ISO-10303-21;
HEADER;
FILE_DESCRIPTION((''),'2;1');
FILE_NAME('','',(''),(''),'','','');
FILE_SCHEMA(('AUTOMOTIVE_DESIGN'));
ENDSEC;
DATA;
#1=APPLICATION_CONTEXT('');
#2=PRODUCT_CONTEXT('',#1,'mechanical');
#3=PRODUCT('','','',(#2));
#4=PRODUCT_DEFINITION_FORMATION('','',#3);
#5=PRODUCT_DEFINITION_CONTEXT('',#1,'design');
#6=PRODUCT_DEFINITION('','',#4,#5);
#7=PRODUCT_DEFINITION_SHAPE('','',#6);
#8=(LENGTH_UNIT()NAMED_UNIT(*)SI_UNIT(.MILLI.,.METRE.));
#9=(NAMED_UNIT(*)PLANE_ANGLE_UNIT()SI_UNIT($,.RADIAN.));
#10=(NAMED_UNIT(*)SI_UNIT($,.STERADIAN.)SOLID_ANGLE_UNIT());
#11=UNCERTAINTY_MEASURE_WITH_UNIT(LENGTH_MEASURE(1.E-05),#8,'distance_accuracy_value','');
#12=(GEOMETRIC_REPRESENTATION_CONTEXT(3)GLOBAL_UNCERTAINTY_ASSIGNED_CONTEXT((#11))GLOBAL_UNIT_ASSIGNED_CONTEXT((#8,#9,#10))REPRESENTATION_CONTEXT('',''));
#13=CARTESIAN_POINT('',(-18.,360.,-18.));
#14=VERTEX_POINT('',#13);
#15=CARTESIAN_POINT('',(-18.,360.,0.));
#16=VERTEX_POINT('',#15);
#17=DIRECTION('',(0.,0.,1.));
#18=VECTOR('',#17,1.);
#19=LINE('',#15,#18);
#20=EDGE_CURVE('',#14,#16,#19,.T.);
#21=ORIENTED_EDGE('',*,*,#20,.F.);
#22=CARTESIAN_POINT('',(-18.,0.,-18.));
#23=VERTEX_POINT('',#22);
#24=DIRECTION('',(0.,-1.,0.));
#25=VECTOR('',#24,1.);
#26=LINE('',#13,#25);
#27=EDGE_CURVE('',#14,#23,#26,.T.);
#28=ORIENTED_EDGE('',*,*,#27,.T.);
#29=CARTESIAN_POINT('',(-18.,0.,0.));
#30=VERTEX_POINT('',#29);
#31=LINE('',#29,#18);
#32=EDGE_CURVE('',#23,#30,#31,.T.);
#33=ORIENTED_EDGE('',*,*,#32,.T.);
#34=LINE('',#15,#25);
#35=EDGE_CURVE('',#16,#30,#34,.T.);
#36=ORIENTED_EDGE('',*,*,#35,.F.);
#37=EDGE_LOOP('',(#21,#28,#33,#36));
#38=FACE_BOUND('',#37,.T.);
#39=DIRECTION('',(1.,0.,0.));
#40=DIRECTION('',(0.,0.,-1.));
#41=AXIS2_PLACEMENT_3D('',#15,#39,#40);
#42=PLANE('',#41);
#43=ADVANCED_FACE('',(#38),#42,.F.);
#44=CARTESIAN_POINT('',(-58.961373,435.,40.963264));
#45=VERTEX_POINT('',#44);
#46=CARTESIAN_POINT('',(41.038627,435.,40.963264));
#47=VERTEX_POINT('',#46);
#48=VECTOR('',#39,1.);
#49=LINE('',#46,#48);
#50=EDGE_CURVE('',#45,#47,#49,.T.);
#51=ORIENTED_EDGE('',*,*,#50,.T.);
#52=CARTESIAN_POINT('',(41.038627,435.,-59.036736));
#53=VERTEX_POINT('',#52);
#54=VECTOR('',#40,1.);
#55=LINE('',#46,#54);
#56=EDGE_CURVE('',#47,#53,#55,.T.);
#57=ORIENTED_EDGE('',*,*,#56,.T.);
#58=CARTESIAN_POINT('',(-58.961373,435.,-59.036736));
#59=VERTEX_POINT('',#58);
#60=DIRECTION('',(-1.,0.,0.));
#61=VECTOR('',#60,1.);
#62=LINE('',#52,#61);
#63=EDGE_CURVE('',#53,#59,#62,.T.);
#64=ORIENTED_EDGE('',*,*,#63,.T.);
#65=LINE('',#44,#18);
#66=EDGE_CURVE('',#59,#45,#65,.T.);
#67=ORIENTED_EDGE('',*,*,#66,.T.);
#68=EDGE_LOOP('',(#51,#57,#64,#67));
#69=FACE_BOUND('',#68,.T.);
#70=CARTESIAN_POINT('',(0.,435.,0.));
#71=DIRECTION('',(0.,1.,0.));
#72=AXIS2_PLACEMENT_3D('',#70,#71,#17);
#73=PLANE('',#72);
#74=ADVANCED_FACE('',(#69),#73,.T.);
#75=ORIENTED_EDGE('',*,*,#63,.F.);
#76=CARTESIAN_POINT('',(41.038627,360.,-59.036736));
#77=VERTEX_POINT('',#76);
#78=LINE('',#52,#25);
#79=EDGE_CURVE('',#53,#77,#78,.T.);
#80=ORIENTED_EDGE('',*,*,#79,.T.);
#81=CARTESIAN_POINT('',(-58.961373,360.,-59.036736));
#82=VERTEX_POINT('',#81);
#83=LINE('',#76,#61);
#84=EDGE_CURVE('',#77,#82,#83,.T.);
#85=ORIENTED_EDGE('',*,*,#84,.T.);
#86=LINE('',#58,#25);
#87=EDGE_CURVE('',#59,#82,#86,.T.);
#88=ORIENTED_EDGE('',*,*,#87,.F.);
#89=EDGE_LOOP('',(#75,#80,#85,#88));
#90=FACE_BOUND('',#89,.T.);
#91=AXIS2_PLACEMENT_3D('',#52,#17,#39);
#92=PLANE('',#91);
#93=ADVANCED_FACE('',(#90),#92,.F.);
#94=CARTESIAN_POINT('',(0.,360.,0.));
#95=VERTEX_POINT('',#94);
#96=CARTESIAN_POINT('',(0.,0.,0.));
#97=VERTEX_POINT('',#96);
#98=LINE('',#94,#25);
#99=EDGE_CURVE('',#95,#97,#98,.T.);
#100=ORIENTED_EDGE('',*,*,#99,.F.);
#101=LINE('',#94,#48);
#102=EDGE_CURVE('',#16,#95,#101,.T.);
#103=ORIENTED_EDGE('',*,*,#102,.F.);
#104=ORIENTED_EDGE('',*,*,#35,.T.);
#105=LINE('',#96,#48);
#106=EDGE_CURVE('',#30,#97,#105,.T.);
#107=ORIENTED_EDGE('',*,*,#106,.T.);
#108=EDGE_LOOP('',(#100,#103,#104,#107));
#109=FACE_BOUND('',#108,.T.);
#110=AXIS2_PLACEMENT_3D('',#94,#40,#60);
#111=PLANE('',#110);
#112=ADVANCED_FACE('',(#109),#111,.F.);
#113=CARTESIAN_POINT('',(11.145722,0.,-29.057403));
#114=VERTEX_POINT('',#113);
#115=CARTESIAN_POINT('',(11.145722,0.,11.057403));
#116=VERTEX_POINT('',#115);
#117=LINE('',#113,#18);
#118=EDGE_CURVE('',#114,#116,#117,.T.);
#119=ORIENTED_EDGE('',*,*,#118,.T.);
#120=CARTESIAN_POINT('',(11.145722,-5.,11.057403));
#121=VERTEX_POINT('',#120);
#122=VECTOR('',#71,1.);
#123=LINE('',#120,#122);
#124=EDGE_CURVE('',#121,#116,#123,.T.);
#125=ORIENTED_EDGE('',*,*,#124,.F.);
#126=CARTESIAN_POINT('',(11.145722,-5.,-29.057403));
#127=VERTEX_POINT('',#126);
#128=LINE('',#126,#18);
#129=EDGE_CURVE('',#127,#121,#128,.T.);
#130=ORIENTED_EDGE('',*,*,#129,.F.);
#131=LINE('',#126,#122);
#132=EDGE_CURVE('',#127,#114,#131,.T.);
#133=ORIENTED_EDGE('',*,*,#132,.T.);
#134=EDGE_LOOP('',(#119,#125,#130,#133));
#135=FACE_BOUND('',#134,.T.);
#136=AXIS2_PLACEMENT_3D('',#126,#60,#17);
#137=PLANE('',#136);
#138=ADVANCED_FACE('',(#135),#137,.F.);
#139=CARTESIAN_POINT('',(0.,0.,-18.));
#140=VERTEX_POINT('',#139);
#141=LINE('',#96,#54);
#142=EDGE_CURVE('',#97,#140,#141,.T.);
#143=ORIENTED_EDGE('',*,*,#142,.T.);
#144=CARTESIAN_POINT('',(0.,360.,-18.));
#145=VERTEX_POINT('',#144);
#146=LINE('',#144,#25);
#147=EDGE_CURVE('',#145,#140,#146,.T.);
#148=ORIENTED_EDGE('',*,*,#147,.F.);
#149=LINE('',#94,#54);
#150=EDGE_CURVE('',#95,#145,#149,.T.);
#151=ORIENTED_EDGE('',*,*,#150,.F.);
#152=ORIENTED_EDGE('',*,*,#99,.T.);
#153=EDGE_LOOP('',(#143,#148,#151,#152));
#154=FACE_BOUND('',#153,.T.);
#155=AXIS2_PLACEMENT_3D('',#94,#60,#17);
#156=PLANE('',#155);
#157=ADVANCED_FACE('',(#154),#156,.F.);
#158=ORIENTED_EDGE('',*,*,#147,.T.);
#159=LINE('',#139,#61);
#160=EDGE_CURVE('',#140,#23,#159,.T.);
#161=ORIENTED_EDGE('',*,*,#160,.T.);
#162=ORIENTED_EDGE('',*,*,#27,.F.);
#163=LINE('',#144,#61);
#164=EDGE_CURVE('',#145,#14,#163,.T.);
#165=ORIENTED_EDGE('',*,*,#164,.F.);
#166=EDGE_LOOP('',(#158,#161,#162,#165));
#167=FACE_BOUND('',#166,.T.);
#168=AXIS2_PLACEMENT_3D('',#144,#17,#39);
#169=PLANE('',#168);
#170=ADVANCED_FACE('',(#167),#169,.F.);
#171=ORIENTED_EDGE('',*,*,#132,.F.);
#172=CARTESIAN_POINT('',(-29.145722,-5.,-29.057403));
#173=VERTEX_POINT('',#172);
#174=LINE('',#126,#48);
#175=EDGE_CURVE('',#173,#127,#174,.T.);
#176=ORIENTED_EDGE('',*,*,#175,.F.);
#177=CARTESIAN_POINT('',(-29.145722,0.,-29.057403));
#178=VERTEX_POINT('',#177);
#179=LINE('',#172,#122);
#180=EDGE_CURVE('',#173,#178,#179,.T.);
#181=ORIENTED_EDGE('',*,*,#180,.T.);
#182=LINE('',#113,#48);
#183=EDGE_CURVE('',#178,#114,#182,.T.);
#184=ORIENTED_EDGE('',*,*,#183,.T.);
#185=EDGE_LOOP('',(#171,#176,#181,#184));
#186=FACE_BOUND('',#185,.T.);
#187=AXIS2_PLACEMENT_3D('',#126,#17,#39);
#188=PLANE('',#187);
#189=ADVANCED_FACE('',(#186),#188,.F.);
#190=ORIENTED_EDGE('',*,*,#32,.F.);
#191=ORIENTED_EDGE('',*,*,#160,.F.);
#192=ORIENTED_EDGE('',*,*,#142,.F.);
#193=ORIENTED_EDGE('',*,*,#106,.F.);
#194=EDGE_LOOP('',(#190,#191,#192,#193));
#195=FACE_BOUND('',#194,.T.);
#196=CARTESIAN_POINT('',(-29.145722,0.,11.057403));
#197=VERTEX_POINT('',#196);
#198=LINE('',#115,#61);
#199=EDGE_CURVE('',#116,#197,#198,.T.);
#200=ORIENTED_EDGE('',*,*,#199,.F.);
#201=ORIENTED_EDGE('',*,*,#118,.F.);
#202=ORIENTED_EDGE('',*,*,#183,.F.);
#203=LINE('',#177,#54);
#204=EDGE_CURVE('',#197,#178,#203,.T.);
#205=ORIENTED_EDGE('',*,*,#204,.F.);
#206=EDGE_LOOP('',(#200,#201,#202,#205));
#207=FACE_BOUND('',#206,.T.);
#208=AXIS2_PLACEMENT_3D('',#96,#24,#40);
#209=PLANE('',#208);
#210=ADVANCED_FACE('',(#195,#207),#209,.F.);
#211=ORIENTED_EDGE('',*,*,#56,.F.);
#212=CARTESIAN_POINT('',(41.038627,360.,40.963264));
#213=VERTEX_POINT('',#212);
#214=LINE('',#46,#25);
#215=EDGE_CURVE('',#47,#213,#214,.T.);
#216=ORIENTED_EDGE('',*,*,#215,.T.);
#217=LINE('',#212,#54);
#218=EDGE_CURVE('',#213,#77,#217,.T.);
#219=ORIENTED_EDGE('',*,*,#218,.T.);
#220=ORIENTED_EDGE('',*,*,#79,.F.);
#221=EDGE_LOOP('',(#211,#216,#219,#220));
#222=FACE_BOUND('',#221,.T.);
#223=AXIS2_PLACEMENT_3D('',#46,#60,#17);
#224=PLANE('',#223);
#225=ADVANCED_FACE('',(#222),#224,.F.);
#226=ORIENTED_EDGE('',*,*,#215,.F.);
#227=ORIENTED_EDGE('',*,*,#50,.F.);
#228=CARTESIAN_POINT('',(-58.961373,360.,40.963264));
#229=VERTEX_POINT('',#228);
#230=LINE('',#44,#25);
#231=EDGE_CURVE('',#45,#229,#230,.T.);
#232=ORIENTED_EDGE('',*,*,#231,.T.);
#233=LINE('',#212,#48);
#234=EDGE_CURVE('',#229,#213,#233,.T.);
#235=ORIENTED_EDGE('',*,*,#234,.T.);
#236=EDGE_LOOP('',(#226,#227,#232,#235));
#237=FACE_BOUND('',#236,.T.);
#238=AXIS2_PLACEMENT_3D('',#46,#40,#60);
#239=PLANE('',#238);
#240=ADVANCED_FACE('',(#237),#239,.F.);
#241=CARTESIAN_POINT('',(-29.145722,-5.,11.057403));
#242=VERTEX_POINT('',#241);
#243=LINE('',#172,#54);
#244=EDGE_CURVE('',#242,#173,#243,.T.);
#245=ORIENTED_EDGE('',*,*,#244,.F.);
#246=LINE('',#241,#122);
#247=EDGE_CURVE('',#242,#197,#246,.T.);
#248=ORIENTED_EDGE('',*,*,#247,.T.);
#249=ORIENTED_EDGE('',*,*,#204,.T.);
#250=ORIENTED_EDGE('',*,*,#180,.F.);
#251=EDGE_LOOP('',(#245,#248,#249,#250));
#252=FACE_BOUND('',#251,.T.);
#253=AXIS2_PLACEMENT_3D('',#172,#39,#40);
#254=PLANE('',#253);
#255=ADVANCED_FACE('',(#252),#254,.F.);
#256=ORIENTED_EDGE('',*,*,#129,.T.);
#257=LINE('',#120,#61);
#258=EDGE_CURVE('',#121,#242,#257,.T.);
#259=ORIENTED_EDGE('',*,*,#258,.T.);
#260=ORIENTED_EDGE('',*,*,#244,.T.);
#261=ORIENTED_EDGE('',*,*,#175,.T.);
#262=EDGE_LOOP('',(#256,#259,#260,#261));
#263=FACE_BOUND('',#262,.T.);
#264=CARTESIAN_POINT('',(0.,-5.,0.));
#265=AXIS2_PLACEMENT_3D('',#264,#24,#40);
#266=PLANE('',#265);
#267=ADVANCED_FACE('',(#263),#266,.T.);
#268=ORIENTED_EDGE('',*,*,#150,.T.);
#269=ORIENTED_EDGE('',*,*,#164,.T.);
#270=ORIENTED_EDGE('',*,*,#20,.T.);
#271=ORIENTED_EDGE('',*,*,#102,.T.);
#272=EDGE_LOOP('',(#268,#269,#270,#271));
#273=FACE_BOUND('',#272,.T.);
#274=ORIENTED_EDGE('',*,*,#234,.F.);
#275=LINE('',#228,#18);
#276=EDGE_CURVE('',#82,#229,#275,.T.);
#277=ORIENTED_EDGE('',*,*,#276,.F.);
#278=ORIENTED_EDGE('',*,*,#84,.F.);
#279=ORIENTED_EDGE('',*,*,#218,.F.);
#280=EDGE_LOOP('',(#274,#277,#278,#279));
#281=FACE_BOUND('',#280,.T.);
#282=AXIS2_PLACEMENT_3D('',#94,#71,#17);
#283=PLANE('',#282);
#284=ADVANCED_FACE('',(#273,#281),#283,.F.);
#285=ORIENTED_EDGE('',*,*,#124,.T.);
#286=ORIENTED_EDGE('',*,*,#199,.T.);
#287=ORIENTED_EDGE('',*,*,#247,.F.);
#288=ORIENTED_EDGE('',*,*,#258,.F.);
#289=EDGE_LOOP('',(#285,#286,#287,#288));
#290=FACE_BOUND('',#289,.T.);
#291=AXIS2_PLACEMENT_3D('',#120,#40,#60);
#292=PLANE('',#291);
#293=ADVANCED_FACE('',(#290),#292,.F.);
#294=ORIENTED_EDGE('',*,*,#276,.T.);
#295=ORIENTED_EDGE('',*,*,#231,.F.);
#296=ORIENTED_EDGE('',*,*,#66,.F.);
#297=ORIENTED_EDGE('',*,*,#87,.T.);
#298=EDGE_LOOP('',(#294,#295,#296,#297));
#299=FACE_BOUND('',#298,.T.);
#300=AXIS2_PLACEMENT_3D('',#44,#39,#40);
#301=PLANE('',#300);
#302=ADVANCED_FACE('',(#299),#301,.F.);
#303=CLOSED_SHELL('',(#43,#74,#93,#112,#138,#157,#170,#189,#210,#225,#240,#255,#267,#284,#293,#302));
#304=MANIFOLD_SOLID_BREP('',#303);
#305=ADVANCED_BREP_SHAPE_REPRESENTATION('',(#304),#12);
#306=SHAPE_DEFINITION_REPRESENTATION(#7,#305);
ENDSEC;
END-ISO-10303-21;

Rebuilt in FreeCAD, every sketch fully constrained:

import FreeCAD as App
import Part
import Sketcher


def add_polygon(sketch, points):
    """Adds a closed chain of lines whose ends are joined by coincident constraints."""
    first, n = sketch.GeometryCount, len(points)
    for a, b in zip(points, points[1:] + points[:1]):
        sketch.addGeometry(Part.LineSegment(App.Vector(*a, 0), App.Vector(*b, 0)), False)
    for i in range(n):
        sketch.addConstraint(Sketcher.Constraint("Coincident", first + i, 2, first + (i + 1) % n, 1))

doc = App.newDocument("Part")
params = doc.addObject("Spreadsheet::Sheet", "Params")
for row, (alias, value) in enumerate([
    ("sketch1_width", "18 mm"),
    ("pad1_length", "360 mm"),
    ("sketch2_width", "100 mm"),
    ("pad2_length", "75 mm"),
    ("pad3_length", "5 mm"),
], start=1):
    params.set(f"A{row}", alias)
    params.set(f"B{row}", "=" + value)
    params.setAlias(f"B{row}", alias)

body = doc.addObject("PartDesign::Body", "Body")

sketch1 = body.newObject("Sketcher::SketchObject", "Sketch")
sketch1.AttachmentSupport = (doc.getObject("XZ_Plane"), [""])
sketch1.MapMode = "FlatFace"
add_polygon(sketch1, [(-18, -18), (-18, 0), (0, 0), (0, -18)])
sketch1.addConstraint(Sketcher.Constraint("Vertical", 0))
sketch1.addConstraint(Sketcher.Constraint("Horizontal", 1))
sketch1.addConstraint(Sketcher.Constraint("Vertical", 2))
sketch1.addConstraint(Sketcher.Constraint("Horizontal", 3))
sketch1.addConstraint(Sketcher.Constraint("Coincident", 1, 2, -1, 1))
sketch1.addConstraint(Sketcher.Constraint("Equal", 3, 0))
sketch1.addConstraint(Sketcher.Constraint("DistanceX", 1, 1, 1, 2, 18.0))
sketch1.setExpression("Constraints[10]", "Params.sketch1_width")
pad1 = body.newObject("PartDesign::Pad", "Pad")
pad1.Profile = sketch1
pad1.setExpression("Length", "Params.pad1_length")
pad1.Reversed = True

sketch2 = body.newObject("Sketcher::SketchObject", "Sketch001")
sketch2.AttachmentSupport = (doc.getObject("XZ_Plane"), [""])
sketch2.MapMode = "FlatFace"
sketch2.AttachmentOffset = App.Placement(App.Vector(0, 0, -360), App.Rotation())
add_polygon(sketch2, [(-59, -59), (-59, 41), (41, 41), (41, -59)])
sketch2.addConstraint(Sketcher.Constraint("Vertical", 0))
sketch2.addConstraint(Sketcher.Constraint("Horizontal", 1))
sketch2.addConstraint(Sketcher.Constraint("Vertical", 2))
sketch2.addConstraint(Sketcher.Constraint("Horizontal", 3))
sketch2.addConstraint(Sketcher.Constraint("Equal", 3, 0))
sketch2.addConstraint(Sketcher.Constraint("DistanceX", 1, 1, 1, 2, 100.0))
sketch2.addConstraint(Sketcher.Constraint("DistanceX", 0, 2, -1, 1, 58.961373))
sketch2.addConstraint(Sketcher.Constraint("DistanceY", -1, 1, 0, 2, 40.963264))
sketch2.setExpression("Constraints[9]", "Params.sketch2_width")
pad2 = body.newObject("PartDesign::Pad", "Pad001")
pad2.Profile = sketch2
pad2.setExpression("Length", "Params.pad2_length")
pad2.Reversed = True

sketch3 = body.newObject("Sketcher::SketchObject", "Sketch002")
sketch3.AttachmentSupport = (doc.getObject("XZ_Plane"), [""])
sketch3.MapMode = "FlatFace"
add_polygon(sketch3, [(11, -29), (11, 11), (-29, 11), (-29, -29)])
sketch3.addConstraint(Sketcher.Constraint("Vertical", 0))
sketch3.addConstraint(Sketcher.Constraint("Horizontal", 1))
sketch3.addConstraint(Sketcher.Constraint("Vertical", 2))
sketch3.addConstraint(Sketcher.Constraint("Horizontal", 3))
sketch3.addConstraint(Sketcher.Constraint("DistanceX", 1, 2, 1, 1, 40.291444))
sketch3.addConstraint(Sketcher.Constraint("DistanceY", 0, 1, 0, 2, 40.114806))
sketch3.addConstraint(Sketcher.Constraint("DistanceX", -1, 1, 0, 2, 11.145722))
sketch3.addConstraint(Sketcher.Constraint("DistanceY", -1, 1, 0, 2, 11.057403))
pad3 = body.newObject("PartDesign::Pad", "Pad002")
pad3.Profile = sketch3
pad3.setExpression("Length", "Params.pad3_length")

doc.recompute()
